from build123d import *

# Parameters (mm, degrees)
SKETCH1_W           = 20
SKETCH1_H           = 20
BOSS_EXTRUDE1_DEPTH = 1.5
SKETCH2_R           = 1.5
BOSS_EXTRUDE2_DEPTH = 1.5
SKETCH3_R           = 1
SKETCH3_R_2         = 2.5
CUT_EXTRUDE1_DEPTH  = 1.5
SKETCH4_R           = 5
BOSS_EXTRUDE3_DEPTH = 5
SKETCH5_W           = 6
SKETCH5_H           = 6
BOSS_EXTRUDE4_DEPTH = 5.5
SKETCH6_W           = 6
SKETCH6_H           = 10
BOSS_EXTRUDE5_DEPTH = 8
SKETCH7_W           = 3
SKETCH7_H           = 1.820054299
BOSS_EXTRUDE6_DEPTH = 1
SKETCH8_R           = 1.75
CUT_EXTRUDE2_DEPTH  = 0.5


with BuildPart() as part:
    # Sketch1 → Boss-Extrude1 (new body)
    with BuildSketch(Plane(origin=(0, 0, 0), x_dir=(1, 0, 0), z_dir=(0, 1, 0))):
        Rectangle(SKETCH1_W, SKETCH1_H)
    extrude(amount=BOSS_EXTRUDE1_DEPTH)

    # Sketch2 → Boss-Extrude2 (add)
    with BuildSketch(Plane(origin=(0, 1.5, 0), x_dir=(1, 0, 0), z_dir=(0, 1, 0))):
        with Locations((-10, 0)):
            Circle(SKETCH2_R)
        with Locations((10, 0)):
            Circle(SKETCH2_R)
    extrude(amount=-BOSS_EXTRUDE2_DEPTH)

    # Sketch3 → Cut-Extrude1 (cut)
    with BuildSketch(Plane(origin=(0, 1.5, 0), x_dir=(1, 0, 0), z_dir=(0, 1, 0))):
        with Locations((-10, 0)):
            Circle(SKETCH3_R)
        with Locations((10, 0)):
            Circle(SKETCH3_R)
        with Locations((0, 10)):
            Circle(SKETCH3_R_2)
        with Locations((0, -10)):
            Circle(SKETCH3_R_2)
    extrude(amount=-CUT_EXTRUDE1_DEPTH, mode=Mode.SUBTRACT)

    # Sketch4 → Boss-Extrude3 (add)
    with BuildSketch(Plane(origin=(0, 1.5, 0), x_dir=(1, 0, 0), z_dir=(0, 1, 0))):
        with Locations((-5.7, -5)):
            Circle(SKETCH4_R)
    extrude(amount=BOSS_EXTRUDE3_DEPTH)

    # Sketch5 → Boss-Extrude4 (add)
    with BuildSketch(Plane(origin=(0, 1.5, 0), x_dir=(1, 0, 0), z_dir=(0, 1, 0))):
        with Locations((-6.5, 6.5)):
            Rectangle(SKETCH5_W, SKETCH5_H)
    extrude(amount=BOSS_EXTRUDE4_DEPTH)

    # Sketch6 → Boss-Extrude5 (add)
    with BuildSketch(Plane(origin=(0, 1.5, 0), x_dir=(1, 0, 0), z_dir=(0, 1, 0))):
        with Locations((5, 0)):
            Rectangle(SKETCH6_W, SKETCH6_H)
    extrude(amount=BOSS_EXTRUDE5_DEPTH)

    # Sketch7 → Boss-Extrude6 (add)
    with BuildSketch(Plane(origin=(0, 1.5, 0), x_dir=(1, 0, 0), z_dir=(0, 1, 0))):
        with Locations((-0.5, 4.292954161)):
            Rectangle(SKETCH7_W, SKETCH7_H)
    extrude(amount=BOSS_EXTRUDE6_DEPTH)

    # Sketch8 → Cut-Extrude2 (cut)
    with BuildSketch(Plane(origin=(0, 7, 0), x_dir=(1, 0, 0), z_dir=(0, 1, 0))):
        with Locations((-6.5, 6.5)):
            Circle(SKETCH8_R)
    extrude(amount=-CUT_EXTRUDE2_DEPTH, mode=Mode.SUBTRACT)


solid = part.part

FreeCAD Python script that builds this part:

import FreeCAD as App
import Part
import Sketcher
Q = App.Units.Quantity

doc = App.newDocument("Part")
body = doc.addObject("PartDesign::Body", "Body")

# Sketch on XZ plane
sketch1 = doc.addObject("Sketcher::SketchObject", "Sketch")
body.addObject(sketch1)
sketch1.AttachmentSupport = (doc.XZ_Plane, [""])
sketch1.MapMode = "FlatFace"
sketch1.addGeometry([
    Part.LineSegment(App.Vector(-10, -10, 0), App.Vector(-10, 10, 0)),
    Part.LineSegment(App.Vector(-10, 10, 0), App.Vector(10, 10, 0)),
    Part.LineSegment(App.Vector(10, 10, 0), App.Vector(10, -10, 0)),
    Part.LineSegment(App.Vector(10, -10, 0), App.Vector(-10, -10, 0)),
], False)
sketch1.addConstraint([
    Sketcher.Constraint("Coincident", 0, 2, 1, 1),
    Sketcher.Constraint("Coincident", 1, 2, 2, 1),
    Sketcher.Constraint("Coincident", 2, 2, 3, 1),
    Sketcher.Constraint("Coincident", 3, 2, 0, 1),
    Sketcher.Constraint("Vertical", 0),
    Sketcher.Constraint("Horizontal", 1),
    Sketcher.Constraint("Vertical", 2),
    Sketcher.Constraint("Horizontal", 3),
    Sketcher.Constraint("Symmetric", 0, 2, 2, 2, -1, 1),
    Sketcher.Constraint("Equal", 3, 0),
    Sketcher.Constraint("DistanceX", 1, 1, 1, 2, Q("20 mm")),
])
pad1 = doc.addObject("PartDesign::Pad", "Pad")
body.addObject(pad1)
pad1.Profile = sketch1
pad1.Length = 1.5
pad1.Reversed = True

# Sketch on XZ plane
sketch2 = doc.addObject("Sketcher::SketchObject", "Sketch001")
body.addObject(sketch2)
sketch2.AttachmentSupport = (doc.XZ_Plane, [""])
sketch2.MapMode = "FlatFace"
sketch2.AttachmentOffset = App.Placement(App.Vector(0, 0, -1.5), App.Rotation())
sketch2.addGeometry([
    Part.Circle(App.Vector(-10, 0, 0), App.Vector(0, 0, 1), 1.5),
    Part.Circle(App.Vector(10, 0, 0), App.Vector(0, 0, 1), 1.5),
], False)
sketch2.addConstraint([
    Sketcher.Constraint("Equal", 0, 1),
    Sketcher.Constraint("Symmetric", 0, 3, 1, 3, -1, 1),
    Sketcher.Constraint("PointOnObject", 0, 3, -1),
    Sketcher.Constraint("Diameter", 0, Q("3 mm")),
    Sketcher.Constraint("DistanceX", 0, 3, -1, 1, Q("10 mm")),
])
pad2 = doc.addObject("PartDesign::Pad", "Pad001")
body.addObject(pad2)
pad2.Profile = sketch2
pad2.Length = 1.5

# Sketch on XZ plane
sketch3 = doc.addObject("Sketcher::SketchObject", "Sketch002")
body.addObject(sketch3)
sketch3.AttachmentSupport = (doc.XZ_Plane, [""])
sketch3.MapMode = "FlatFace"
sketch3.AttachmentOffset = App.Placement(App.Vector(0, 0, -1.5), App.Rotation())
sketch3.addGeometry([
    Part.Circle(App.Vector(-10, 0, 0), App.Vector(0, 0, 1), 1),
    Part.Circle(App.Vector(10, 0, 0), App.Vector(0, 0, 1), 1),
    Part.Circle(App.Vector(0, -10, 0), App.Vector(0, 0, 1), 2.5),
    Part.Circle(App.Vector(0, 10, 0), App.Vector(0, 0, 1), 2.5),
], False)
sketch3.addConstraint([
    Sketcher.Constraint("Equal", 0, 1),
    Sketcher.Constraint("Equal", 2, 3),
    Sketcher.Constraint("Symmetric", 0, 3, 1, 3, -1, 1),
    Sketcher.Constraint("Symmetric", 2, 3, 3, 3, -1, 1),
    Sketcher.Constraint("PointOnObject", 0, 3, -1),
    Sketcher.Constraint("PointOnObject", 2, 3, -2),
    Sketcher.Constraint("Diameter", 0, Q("2 mm")),
    Sketcher.Constraint("Diameter", 2, Q("5 mm")),
    Sketcher.Constraint("DistanceX", 0, 3, -1, 1, Q("10 mm")),
    Sketcher.Constraint("DistanceY", 2, 3, -1, 1, Q("10 mm")),
])
pocket1 = doc.addObject("PartDesign::Pocket", "Pocket")
body.addObject(pocket1)
pocket1.Profile = sketch3
pocket1.Length = 1.5
pocket1.Reversed = True

# Sketch on XZ plane
sketch4 = doc.addObject("Sketcher::SketchObject", "Sketch003")
body.addObject(sketch4)
sketch4.AttachmentSupport = (doc.XZ_Plane, [""])
sketch4.MapMode = "FlatFace"
sketch4.AttachmentOffset = App.Placement(App.Vector(0, 0, -1.5), App.Rotation())
sketch4.addGeometry(Part.Circle(App.Vector(-6, 5, 0), App.Vector(0, 0, 1), 5), False)
sketch4.addConstraint([
    Sketcher.Constraint("Diameter", 0, Q("10 mm")),
    Sketcher.Constraint("DistanceY", -1, 1, 0, 3, Q("5 mm")),
    Sketcher.Constraint("DistanceX", 0, 3, -1, 1, Q("5.7 mm")),
])
pad3 = doc.addObject("PartDesign::Pad", "Pad002")
body.addObject(pad3)
pad3.Profile = sketch4
pad3.Length = 5
pad3.Reversed = True

# Sketch on XZ plane
sketch5 = doc.addObject("Sketcher::SketchObject", "Sketch004")
body.addObject(sketch5)
sketch5.AttachmentSupport = (doc.XZ_Plane, [""])
sketch5.MapMode = "FlatFace"
sketch5.AttachmentOffset = App.Placement(App.Vector(0, 0, -1.5), App.Rotation())
sketch5.addGeometry([
    Part.LineSegment(App.Vector(-10, -10, 0), App.Vector(-10, -4, 0)),
    Part.LineSegment(App.Vector(-10, -4, 0), App.Vector(-4, -4, 0)),
    Part.LineSegment(App.Vector(-4, -4, 0), App.Vector(-4, -10, 0)),
    Part.LineSegment(App.Vector(-4, -10, 0), App.Vector(-10, -10, 0)),
], False)
sketch5.addConstraint([
    Sketcher.Constraint("Coincident", 0, 2, 1, 1),
    Sketcher.Constraint("Coincident", 1, 2, 2, 1),
    Sketcher.Constraint("Coincident", 2, 2, 3, 1),
    Sketcher.Constraint("Coincident", 3, 2, 0, 1),
    Sketcher.Constraint("Vertical", 0),
    Sketcher.Constraint("Horizontal", 1),
    Sketcher.Constraint("Vertical", 2),
    Sketcher.Constraint("Horizontal", 3),
    Sketcher.Constraint("Equal", 3, 0),
    Sketcher.Constraint("DistanceX", 1, 1, 1, 2, Q("6 mm")),
    Sketcher.Constraint("DistanceX", 0, 2, -1, 1, Q("9.5 mm")),
    Sketcher.Constraint("DistanceY", 0, 2, -1, 1, Q("3.5 mm")),
])
pad4 = doc.addObject("PartDesign::Pad", "Pad003")
body.addObject(pad4)
pad4.Profile = sketch5
pad4.Length = 5.5
pad4.Reversed = True

# Sketch on XZ plane
sketch6 = doc.addObject("Sketcher::SketchObject", "Sketch005")
body.addObject(sketch6)
sketch6.AttachmentSupport = (doc.XZ_Plane, [""])
sketch6.MapMode = "FlatFace"
sketch6.AttachmentOffset = App.Placement(App.Vector(0, 0, -1.5), App.Rotation())
sketch6.addGeometry([
    Part.LineSegment(App.Vector(2, -5, 0), App.Vector(2, 5, 0)),
    Part.LineSegment(App.Vector(2, 5, 0), App.Vector(8, 5, 0)),
    Part.LineSegment(App.Vector(8, 5, 0), App.Vector(8, -5, 0)),
    Part.LineSegment(App.Vector(8, -5, 0), App.Vector(2, -5, 0)),
], False)
sketch6.addConstraint([
    Sketcher.Constraint("Coincident", 0, 2, 1, 1),
    Sketcher.Constraint("Coincident", 1, 2, 2, 1),
    Sketcher.Constraint("Coincident", 2, 2, 3, 1),
    Sketcher.Constraint("Coincident", 3, 2, 0, 1),
    Sketcher.Constraint("Vertical", 0),
    Sketcher.Constraint("Horizontal", 1),
    Sketcher.Constraint("Vertical", 2),
    Sketcher.Constraint("Horizontal", 3),
    Sketcher.Constraint("DistanceX", 1, 1, 1, 2, Q("6 mm")),
    Sketcher.Constraint("DistanceY", 0, 1, 0, 2, Q("10 mm")),
    Sketcher.Constraint("DistanceX", -1, 1, 0, 2, Q("2 mm")),
    Sketcher.Constraint("DistanceY", -1, 1, 0, 2, Q("5 mm")),
])
pad5 = doc.addObject("PartDesign::Pad", "Pad004")
body.addObject(pad5)
pad5.Profile = sketch6
pad5.Length = 8
pad5.Reversed = True

# Sketch on XZ plane
sketch7 = doc.addObject("Sketcher::SketchObject", "Sketch006")
body.addObject(sketch7)
sketch7.AttachmentSupport = (doc.XZ_Plane, [""])
sketch7.MapMode = "FlatFace"
sketch7.AttachmentOffset = App.Placement(App.Vector(0, 0, -1.5), App.Rotation())
sketch7.addGeometry([
    Part.LineSegment(App.Vector(-2, -5.2, 0), App.Vector(-2, -3.4, 0)),
    Part.LineSegment(App.Vector(-2, -3.4, 0), App.Vector(1, -3.4, 0)),
    Part.LineSegment(App.Vector(1, -3.4, 0), App.Vector(1, -5.2, 0)),
    Part.LineSegment(App.Vector(1, -5.2, 0), App.Vector(-2, -5.2, 0)),
], False)
sketch7.addConstraint([
    Sketcher.Constraint("Coincident", 0, 2, 1, 1),
    Sketcher.Constraint("Coincident", 1, 2, 2, 1),
    Sketcher.Constraint("Coincident", 2, 2, 3, 1),
    Sketcher.Constraint("Coincident", 3, 2, 0, 1),
    Sketcher.Constraint("Vertical", 0),
    Sketcher.Constraint("Horizontal", 1),
    Sketcher.Constraint("Vertical", 2),
    Sketcher.Constraint("Horizontal", 3),
    Sketcher.Constraint("DistanceX", 1, 1, 1, 2, Q("3 mm")),
    Sketcher.Constraint("DistanceX", 0, 2, -1, 1, Q("2 mm")),
    Sketcher.Constraint("DistanceY", 0, 1, 0, 2, Q("1.820054 mm")),
    Sketcher.Constraint("DistanceY", 2, 2, -1, 1, Q("5.202981 mm")),
])
pad6 = doc.addObject("PartDesign::Pad", "Pad005")
body.addObject(pad6)
pad6.Profile = sketch7
pad6.Length = 1
pad6.Reversed = True

# Sketch on XZ plane
sketch8 = doc.addObject("Sketcher::SketchObject", "Sketch007")
body.addObject(sketch8)
sketch8.AttachmentSupport = (doc.XZ_Plane, [""])
sketch8.MapMode = "FlatFace"
sketch8.AttachmentOffset = App.Placement(App.Vector(0, 0, -7), App.Rotation())
sketch8.addGeometry(Part.Circle(App.Vector(-6.5, -6.5, 0), App.Vector(0, 0, 1), 1.8), False)
sketch8.addConstraint([
    Sketcher.Constraint("Diameter", 0, Q("3.5 mm")),
    Sketcher.Constraint("DistanceX", 0, 3, -1, 1, Q("6.5 mm")),
    Sketcher.Constraint("DistanceY", 0, 3, -1, 1, Q("6.5 mm")),
])
pocket2 = doc.addObject("PartDesign::Pocket", "Pocket001")
body.addObject(pocket2)
pocket2.Profile = sketch8
pocket2.Length = 0.5
pocket2.Reversed = True

doc.recompute()
